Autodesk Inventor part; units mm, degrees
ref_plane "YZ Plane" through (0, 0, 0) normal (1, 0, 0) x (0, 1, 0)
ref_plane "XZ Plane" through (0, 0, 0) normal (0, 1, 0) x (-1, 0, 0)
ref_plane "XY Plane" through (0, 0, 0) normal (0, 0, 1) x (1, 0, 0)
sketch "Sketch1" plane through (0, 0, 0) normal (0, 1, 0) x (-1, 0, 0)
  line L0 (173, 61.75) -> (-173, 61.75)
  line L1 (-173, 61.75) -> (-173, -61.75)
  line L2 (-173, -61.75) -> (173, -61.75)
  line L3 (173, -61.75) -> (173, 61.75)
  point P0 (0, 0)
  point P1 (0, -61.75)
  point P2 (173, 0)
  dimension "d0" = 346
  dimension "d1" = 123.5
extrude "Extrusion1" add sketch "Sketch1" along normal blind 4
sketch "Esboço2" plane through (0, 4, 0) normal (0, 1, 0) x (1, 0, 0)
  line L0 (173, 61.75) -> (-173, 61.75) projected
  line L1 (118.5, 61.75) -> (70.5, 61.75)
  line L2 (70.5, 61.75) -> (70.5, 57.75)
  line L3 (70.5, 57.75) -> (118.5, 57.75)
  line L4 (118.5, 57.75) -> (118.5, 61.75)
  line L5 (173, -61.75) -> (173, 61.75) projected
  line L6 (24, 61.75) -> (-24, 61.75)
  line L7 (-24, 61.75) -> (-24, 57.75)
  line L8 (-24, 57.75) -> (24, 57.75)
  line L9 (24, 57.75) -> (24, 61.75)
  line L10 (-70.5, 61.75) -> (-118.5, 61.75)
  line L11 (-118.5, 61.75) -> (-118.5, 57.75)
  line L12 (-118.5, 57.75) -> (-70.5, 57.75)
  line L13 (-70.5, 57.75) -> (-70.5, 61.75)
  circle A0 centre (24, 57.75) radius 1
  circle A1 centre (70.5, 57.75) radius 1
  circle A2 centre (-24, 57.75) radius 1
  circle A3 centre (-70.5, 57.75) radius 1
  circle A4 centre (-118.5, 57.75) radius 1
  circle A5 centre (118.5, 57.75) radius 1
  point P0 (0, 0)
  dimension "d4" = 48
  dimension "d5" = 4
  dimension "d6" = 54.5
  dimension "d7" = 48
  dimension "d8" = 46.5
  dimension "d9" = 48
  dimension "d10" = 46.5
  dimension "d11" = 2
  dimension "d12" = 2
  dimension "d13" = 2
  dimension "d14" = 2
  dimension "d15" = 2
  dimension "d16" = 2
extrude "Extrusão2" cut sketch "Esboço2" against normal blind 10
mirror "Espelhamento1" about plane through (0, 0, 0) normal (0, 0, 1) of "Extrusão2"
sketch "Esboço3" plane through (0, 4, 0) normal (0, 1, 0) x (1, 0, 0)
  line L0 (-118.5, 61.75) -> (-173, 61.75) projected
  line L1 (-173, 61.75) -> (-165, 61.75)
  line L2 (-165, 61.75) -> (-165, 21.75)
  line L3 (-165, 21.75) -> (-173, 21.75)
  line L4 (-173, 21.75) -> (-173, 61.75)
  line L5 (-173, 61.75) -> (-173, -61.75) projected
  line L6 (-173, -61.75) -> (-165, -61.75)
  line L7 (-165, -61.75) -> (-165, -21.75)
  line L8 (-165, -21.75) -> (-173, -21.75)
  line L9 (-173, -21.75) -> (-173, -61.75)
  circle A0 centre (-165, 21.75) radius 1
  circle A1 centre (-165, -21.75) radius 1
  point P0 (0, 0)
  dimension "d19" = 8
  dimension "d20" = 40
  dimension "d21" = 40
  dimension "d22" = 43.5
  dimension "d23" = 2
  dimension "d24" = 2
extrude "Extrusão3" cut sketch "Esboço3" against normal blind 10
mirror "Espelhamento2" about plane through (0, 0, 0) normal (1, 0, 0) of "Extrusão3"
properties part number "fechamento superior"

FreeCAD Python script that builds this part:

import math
import FreeCAD as App
import Part
import Sketcher
from FreeCAD import Vector
Q = App.Units.Quantity

doc = App.newDocument("Part")
body = doc.addObject("PartDesign::Body", "Body")

# Sketch on XZ plane
sketch1 = body.newObject("Sketcher::SketchObject", "Sketch")
sketch1.AttachmentSupport = (doc.getObject("XZ_Plane"), [""])
sketch1.MapMode = "FlatFace"
sketch1.addGeometry([
    Part.LineSegment(Vector(-173, -61.75, 0), Vector(-173, 61.75, 0)),
    Part.LineSegment(Vector(-173, 61.75, 0), Vector(173, 61.75, 0)),
    Part.LineSegment(Vector(173, 61.75, 0), Vector(173, -61.75, 0)),
    Part.LineSegment(Vector(173, -61.75, 0), Vector(-173, -61.75, 0)),
], False)
sketch1.addConstraint([
    Sketcher.Constraint("Coincident", 0, 2, 1, 1),
    Sketcher.Constraint("Coincident", 1, 2, 2, 1),
    Sketcher.Constraint("Coincident", 2, 2, 3, 1),
    Sketcher.Constraint("Coincident", 3, 2, 0, 1),
    Sketcher.Constraint("Vertical", 0),
    Sketcher.Constraint("Horizontal", 1),
    Sketcher.Constraint("Vertical", 2),
    Sketcher.Constraint("Horizontal", 3),
    Sketcher.Constraint("Symmetric", 0, 2, 2, 2, -1, 1),
    Sketcher.Constraint("DistanceX", 1, 1, 1, 2, Q("346 mm")),
    Sketcher.Constraint("DistanceY", 0, 1, 0, 2, Q("123.5 mm")),
])
pad1 = body.newObject("PartDesign::Pad", "Pad")
pad1.Profile = sketch1
pad1.Length = 4
pad1.Reversed = True

# Sketch on XZ plane
sketch2 = body.newObject("Sketcher::SketchObject", "Sketch001")
sketch2.AttachmentSupport = (doc.getObject("XZ_Plane"), [""])
sketch2.MapMode = "FlatFace"
sketch2.AttachmentOffset = App.Placement(Vector(0, 0, -4), App.Rotation())
sketch2.addGeometry([
    Part.LineSegment(Vector(118.5, -58.75, 0), Vector(118.5, -61.75, 0)),  # 0
    Part.LineSegment(Vector(118.5, -61.75, 0), Vector(70.5, -61.75, 0)),  # 1
    Part.LineSegment(Vector(70.5, -61.75, 0), Vector(70.5, -58.75, 0)),  # 2
    Part.ArcOfCircle(Part.Circle(Vector(70.5, -57.75, 0), Vector(0, 0, 1), 1), math.radians(0), math.radians(270)),  # 3
    Part.LineSegment(Vector(71.5, -57.75, 0), Vector(117.5, -57.75, 0)),  # 4
    Part.ArcOfCircle(Part.Circle(Vector(118.5, -57.75, 0), Vector(0, 0, 1), 1), math.radians(-90), math.radians(180)),  # 5
    Part.LineSegment(Vector(-70.5, -58.75, 0), Vector(-70.5, -61.75, 0)),  # 6
    Part.LineSegment(Vector(-70.5, -61.75, 0), Vector(-118.5, -61.75, 0)),  # 7
    Part.LineSegment(Vector(-118.5, -61.75, 0), Vector(-118.5, -58.75, 0)),  # 8
    Part.ArcOfCircle(Part.Circle(Vector(-118.5, -57.75, 0), Vector(0, 0, 1), 1), math.radians(0), math.radians(270)),  # 9
    Part.LineSegment(Vector(-117.5, -57.75, 0), Vector(-71.5, -57.75, 0)),  # 10
    Part.ArcOfCircle(Part.Circle(Vector(-70.5, -57.75, 0), Vector(0, 0, 1), 1), math.radians(-90), math.radians(180)),  # 11
    Part.LineSegment(Vector(24, -58.75, 0), Vector(24, -61.75, 0)),  # 12
    Part.LineSegment(Vector(24, -61.75, 0), Vector(-24, -61.75, 0)),  # 13
    Part.LineSegment(Vector(-24, -61.75, 0), Vector(-24, -58.75, 0)),  # 14
    Part.ArcOfCircle(Part.Circle(Vector(-24, -57.75, 0), Vector(0, 0, 1), 1), math.radians(0), math.radians(270)),  # 15
    Part.LineSegment(Vector(-23, -57.75, 0), Vector(23, -57.75, 0)),  # 16
    Part.ArcOfCircle(Part.Circle(Vector(24, -57.75, 0), Vector(0, 0, 1), 1), math.radians(-90), math.radians(180)),  # 17
], False)
sketch2.addConstraint([
    Sketcher.Constraint("Coincident", 0, 2, 1, 1),
    Sketcher.Constraint("Coincident", 1, 2, 2, 1),
    Sketcher.Constraint("Coincident", 2, 2, 3, 2),
    Sketcher.Constraint("Coincident", 3, 1, 4, 1),
    Sketcher.Constraint("Coincident", 4, 2, 5, 2),
    Sketcher.Constraint("Coincident", 5, 1, 0, 1),
    Sketcher.Constraint("Coincident", 6, 2, 7, 1),
    Sketcher.Constraint("Coincident", 7, 2, 8, 1),
    Sketcher.Constraint("Coincident", 8, 2, 9, 2),
    Sketcher.Constraint("Coincident", 9, 1, 10, 1),
    Sketcher.Constraint("Coincident", 10, 2, 11, 2),
    Sketcher.Constraint("Coincident", 11, 1, 6, 1),
    Sketcher.Constraint("Coincident", 12, 2, 13, 1),
    Sketcher.Constraint("Coincident", 13, 2, 14, 1),
    Sketcher.Constraint("Coincident", 14, 2, 15, 2),
    Sketcher.Constraint("Coincident", 15, 1, 16, 1),
    Sketcher.Constraint("Coincident", 16, 2, 17, 2),
    Sketcher.Constraint("Coincident", 17, 1, 12, 1),
    Sketcher.Constraint("Vertical", 0),
    Sketcher.Constraint("Horizontal", 1),
    Sketcher.Constraint("Vertical", 2),
    Sketcher.Constraint("Horizontal", 4),
    Sketcher.Constraint("Vertical", 6),
    Sketcher.Constraint("Horizontal", 7),
    Sketcher.Constraint("Vertical", 8),
    Sketcher.Constraint("Horizontal", 10),
    Sketcher.Constraint("Vertical", 12),
    Sketcher.Constraint("Horizontal", 13),
    Sketcher.Constraint("Vertical", 14),
    Sketcher.Constraint("Horizontal", 16),
    Sketcher.Constraint("Equal", 3, 5),
    Sketcher.Constraint("Equal", 5, 9),
    Sketcher.Constraint("Equal", 9, 11),
    Sketcher.Constraint("Equal", 11, 15),
    Sketcher.Constraint("Equal", 15, 17),
    Sketcher.Constraint("Symmetric", 5, 3, 9, 3, -2),
    Sketcher.Constraint("Symmetric", 3, 3, 11, 3, -2),
    Sketcher.Constraint("Symmetric", 15, 3, 17, 3, -2),
    Sketcher.Constraint("Symmetric", 1, 2, 6, 2, -2),
    Sketcher.Constraint("Horizontal", 3, 3, 5, 3),
    Sketcher.Constraint("Horizontal", 11, 3, 15, 3),
    Sketcher.Constraint("Horizontal", 17, 3, 3, 1),
    Sketcher.Constraint("Horizontal", 4, 2, 9, 1),
    Sketcher.Constraint("Horizontal", 7, 2, 12, 2),
    Sketcher.Constraint("Horizontal", 10, 2, 15, 1),
    Sketcher.Constraint("Vertical", 5, 3, 0, 2),
    Sketcher.Constraint("Vertical", 3, 3, 1, 2),
    Sketcher.Constraint("Vertical", 9, 3, 7, 2),
    Sketcher.Constraint("Vertical", 17, 3, 12, 2),
    Sketcher.Constraint("Vertical", 15, 3, 13, 2),
    Sketcher.Constraint("Equal", 7, 13),
    Sketcher.Constraint("Radius", 3, Q("1 mm")),
    Sketcher.Constraint("DistanceX", 1, 2, 1, 1, Q("48 mm")),
    Sketcher.Constraint("DistanceY", 0, 2, 5, 3, Q("4 mm")),
    Sketcher.Constraint("DistanceX", 11, 3, 15, 3, Q("46.5 mm")),
    Sketcher.Constraint("DistanceY", 3, 3, -1, 1, Q("57.75 mm")),
])
pocket1 = body.newObject("PartDesign::Pocket", "Pocket")
pocket1.Profile = sketch2
pocket1.Length = 10
pocket1.Reversed = True
doc.recompute()

mirrored = body.newObject("PartDesign::Mirrored", "Mirrored")
mirrored.Originals = [pocket1]
mirrored.MirrorPlane = (doc.getObject("XY_Plane"), [""])
body.Tip = mirrored

# Sketch on XZ plane
sketch3 = body.newObject("Sketcher::SketchObject", "Sketch002")
sketch3.AttachmentSupport = (doc.getObject("XZ_Plane"), [""])
sketch3.MapMode = "FlatFace"
sketch3.AttachmentOffset = App.Placement(Vector(0, 0, -4), App.Rotation())
sketch3.addGeometry([
    Part.LineSegment(Vector(-165, -22.75, 0), Vector(-165, -61.75, 0)),  # 0
    Part.LineSegment(Vector(-165, -61.75, 0), Vector(-173, -61.75, 0)),  # 1
    Part.LineSegment(Vector(-173, -61.75, 0), Vector(-173, -21.75, 0)),  # 2
    Part.LineSegment(Vector(-173, -21.75, 0), Vector(-166, -21.75, 0)),  # 3
    Part.ArcOfCircle(Part.Circle(Vector(-165, -21.75, 0), Vector(0, 0, 1), 1), math.radians(-90), math.radians(180)),  # 4
    Part.LineSegment(Vector(-166, 21.75, 0), Vector(-173, 21.75, 0)),  # 5
    Part.LineSegment(Vector(-173, 21.75, 0), Vector(-173, 61.75, 0)),  # 6
    Part.LineSegment(Vector(-173, 61.75, 0), Vector(-165, 61.75, 0)),  # 7
    Part.LineSegment(Vector(-165, 61.75, 0), Vector(-165, 22.75, 0)),  # 8
    Part.ArcOfCircle(Part.Circle(Vector(-165, 21.75, 0), Vector(0, 0, 1), 1), math.radians(180), math.radians(450)),  # 9
], False)
sketch3.addConstraint([
    Sketcher.Constraint("Coincident", 0, 2, 1, 1),
    Sketcher.Constraint("Coincident", 1, 2, 2, 1),
    Sketcher.Constraint("Coincident", 2, 2, 3, 1),
    Sketcher.Constraint("Coincident", 3, 2, 4, 2),
    Sketcher.Constraint("Coincident", 4, 1, 0, 1),
    Sketcher.Constraint("Coincident", 5, 2, 6, 1),
    Sketcher.Constraint("Coincident", 6, 2, 7, 1),
    Sketcher.Constraint("Coincident", 7, 2, 8, 1),
    Sketcher.Constraint("Coincident", 8, 2, 9, 2),
    Sketcher.Constraint("Coincident", 9, 1, 5, 1),
    Sketcher.Constraint("Vertical", 0),
    Sketcher.Constraint("Horizontal", 1),
    Sketcher.Constraint("Vertical", 2),
    Sketcher.Constraint("Horizontal", 3),
    Sketcher.Constraint("Horizontal", 5),
    Sketcher.Constraint("Vertical", 6),
    Sketcher.Constraint("Horizontal", 7),
    Sketcher.Constraint("Vertical", 8),
    Sketcher.Constraint("Equal", 4, 9),
    Sketcher.Constraint("Symmetric", 4, 3, 9, 3, -1),
    Sketcher.Constraint("Symmetric", 2, 2, 5, 2, -1),
    Sketcher.Constraint("Symmetric", 0, 2, 7, 2, -1),
    Sketcher.Constraint("Horizontal", 4, 3, 2, 2),
    Sketcher.Constraint("Vertical", 9, 3, 0, 2),
    Sketcher.Constraint("Radius", 4, Q("1 mm")),
    Sketcher.Constraint("DistanceX", 1, 2, 1, 1, Q("8 mm")),
    Sketcher.Constraint("DistanceY", 2, 1, 2, 2, Q("40 mm")),
    Sketcher.Constraint("DistanceY", 4, 3, 9, 3, Q("43.5 mm")),
    Sketcher.Constraint("DistanceX", 4, 3, -1, 1, Q("165 mm")),
])
pocket2 = body.newObject("PartDesign::Pocket", "Pocket001")
pocket2.Profile = sketch3
pocket2.Length = 10
pocket2.Reversed = True
doc.recompute()

mirrored2 = body.newObject("PartDesign::Mirrored", "Mirrored001")
mirrored2.Originals = [pocket2]
mirrored2.MirrorPlane = (doc.getObject("YZ_Plane"), [""])
body.Tip = mirrored2

doc.recompute()
